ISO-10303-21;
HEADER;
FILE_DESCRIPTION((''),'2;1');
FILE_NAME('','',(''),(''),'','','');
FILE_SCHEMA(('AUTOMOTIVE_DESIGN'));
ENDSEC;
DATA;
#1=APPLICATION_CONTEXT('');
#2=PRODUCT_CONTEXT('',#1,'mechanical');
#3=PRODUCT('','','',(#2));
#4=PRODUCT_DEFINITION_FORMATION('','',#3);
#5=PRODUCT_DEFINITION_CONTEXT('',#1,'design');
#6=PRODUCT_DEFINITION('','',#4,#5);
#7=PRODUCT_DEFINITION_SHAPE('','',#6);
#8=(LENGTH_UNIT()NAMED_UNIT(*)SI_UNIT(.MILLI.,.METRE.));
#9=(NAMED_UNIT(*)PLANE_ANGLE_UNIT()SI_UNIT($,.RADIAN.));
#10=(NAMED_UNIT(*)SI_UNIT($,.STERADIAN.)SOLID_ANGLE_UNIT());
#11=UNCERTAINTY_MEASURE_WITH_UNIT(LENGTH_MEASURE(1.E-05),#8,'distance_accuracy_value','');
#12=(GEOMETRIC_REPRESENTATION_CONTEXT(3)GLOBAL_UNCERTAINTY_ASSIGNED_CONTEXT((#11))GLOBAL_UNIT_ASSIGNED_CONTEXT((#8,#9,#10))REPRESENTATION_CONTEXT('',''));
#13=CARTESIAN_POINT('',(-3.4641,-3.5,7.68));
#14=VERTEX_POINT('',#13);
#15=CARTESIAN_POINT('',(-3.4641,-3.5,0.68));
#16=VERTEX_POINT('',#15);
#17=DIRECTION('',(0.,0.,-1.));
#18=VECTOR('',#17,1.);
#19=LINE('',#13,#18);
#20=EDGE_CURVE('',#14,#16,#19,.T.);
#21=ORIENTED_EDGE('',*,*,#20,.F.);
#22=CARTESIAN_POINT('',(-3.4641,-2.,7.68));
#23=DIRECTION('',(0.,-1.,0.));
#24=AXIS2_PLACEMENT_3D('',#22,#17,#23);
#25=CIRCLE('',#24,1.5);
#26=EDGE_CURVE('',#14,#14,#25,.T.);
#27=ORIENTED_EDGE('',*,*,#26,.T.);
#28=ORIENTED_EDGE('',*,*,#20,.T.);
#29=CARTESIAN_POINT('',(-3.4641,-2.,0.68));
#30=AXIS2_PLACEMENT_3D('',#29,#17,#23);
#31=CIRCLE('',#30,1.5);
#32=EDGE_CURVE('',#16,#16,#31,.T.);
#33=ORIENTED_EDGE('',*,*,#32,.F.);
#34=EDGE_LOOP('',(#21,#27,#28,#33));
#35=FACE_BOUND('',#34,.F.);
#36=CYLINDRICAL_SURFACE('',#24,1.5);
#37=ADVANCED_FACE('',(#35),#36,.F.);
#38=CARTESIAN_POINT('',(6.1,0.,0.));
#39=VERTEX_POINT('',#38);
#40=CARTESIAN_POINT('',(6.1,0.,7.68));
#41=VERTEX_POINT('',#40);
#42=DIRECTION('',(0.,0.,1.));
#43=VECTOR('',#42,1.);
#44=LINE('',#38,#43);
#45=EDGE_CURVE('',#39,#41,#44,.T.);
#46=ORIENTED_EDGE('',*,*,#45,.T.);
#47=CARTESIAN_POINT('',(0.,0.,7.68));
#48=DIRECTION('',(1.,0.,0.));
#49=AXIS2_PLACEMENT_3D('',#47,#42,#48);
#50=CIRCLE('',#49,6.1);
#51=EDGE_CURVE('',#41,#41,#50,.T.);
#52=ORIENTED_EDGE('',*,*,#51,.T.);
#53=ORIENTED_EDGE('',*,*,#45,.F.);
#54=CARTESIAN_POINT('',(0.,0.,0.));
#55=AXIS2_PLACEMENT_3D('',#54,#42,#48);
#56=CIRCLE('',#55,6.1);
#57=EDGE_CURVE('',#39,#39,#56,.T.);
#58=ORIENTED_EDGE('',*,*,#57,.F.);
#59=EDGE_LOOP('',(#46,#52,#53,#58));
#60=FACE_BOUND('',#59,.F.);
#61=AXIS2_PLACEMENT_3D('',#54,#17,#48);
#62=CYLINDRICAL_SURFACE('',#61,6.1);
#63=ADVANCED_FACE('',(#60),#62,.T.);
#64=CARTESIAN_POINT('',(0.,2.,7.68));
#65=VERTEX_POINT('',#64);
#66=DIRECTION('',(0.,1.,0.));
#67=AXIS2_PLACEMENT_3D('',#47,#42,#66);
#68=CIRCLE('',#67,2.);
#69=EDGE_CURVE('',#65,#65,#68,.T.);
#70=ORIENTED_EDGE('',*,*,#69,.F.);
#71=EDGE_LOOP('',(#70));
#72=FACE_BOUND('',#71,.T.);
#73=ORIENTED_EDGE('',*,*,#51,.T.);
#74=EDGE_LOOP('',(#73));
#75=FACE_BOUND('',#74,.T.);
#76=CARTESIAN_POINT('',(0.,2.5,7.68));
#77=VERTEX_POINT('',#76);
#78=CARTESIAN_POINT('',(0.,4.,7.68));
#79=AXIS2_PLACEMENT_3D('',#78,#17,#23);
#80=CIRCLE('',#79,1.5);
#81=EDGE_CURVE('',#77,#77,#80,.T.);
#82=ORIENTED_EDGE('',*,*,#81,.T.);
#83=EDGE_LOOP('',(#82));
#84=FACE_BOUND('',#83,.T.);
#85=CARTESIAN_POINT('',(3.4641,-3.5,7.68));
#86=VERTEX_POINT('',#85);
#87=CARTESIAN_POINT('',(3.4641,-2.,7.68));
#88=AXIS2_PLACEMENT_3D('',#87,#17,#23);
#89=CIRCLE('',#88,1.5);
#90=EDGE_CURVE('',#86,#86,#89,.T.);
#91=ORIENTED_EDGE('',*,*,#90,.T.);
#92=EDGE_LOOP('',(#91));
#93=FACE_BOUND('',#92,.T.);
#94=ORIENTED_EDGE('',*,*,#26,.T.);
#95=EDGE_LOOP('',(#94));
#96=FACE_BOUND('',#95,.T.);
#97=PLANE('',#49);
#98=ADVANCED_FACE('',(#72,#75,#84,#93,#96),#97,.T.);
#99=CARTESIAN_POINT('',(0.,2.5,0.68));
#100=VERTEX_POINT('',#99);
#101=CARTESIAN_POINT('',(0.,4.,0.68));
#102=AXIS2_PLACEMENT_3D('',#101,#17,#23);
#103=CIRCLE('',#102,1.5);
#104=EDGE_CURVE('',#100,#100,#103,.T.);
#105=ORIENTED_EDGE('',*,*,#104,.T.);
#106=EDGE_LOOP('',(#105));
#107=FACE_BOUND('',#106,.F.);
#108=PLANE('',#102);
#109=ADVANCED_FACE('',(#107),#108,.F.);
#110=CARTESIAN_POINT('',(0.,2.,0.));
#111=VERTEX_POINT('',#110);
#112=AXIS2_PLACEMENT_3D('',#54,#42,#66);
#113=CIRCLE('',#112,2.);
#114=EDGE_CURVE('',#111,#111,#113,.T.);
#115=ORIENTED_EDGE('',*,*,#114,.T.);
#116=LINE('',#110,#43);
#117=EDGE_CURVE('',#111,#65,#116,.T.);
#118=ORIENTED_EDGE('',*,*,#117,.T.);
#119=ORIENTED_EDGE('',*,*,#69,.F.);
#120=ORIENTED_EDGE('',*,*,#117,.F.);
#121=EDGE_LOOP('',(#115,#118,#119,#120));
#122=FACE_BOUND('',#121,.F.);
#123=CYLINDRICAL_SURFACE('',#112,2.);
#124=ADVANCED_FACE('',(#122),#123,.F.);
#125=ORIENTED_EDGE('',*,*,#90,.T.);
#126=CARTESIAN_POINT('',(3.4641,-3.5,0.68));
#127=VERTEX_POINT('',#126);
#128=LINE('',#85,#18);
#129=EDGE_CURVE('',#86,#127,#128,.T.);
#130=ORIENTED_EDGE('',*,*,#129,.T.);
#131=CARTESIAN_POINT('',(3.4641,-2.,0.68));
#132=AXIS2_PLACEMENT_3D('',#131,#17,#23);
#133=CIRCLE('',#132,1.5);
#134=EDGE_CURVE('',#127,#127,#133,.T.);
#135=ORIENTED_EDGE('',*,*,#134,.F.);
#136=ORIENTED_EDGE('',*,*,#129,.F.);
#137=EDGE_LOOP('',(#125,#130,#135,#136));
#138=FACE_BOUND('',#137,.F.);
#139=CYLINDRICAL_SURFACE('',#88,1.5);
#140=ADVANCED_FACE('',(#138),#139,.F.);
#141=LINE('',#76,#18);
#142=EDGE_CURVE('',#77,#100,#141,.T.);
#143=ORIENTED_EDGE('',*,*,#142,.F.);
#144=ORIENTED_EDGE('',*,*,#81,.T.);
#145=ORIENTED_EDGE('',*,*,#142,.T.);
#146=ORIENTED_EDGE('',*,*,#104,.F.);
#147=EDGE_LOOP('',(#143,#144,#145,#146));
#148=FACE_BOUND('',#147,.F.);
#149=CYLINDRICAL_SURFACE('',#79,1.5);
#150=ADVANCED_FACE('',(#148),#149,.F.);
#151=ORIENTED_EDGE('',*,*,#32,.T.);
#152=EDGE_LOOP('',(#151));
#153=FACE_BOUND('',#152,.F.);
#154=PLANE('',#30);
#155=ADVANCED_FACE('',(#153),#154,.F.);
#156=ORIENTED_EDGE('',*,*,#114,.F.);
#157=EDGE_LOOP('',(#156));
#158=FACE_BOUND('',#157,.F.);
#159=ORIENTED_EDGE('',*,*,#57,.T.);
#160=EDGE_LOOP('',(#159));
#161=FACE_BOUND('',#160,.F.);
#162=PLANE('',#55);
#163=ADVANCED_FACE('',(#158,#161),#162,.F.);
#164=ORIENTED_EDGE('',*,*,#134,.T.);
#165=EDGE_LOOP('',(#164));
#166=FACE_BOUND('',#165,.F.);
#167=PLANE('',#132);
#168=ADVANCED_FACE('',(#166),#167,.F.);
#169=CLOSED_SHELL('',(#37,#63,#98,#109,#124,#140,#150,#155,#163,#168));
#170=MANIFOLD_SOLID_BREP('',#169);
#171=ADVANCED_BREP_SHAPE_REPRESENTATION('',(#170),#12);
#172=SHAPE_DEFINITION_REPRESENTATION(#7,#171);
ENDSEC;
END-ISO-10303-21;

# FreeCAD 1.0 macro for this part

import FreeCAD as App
import Part
import Sketcher
from FreeCAD import Vector
Q = App.Units.Quantity

doc = App.newDocument("Part")
body = doc.addObject("PartDesign::Body", "Body")

sketch1 = body.newObject("Sketcher::SketchObject", "Sketch")
sketch1.AttachmentSupport = (doc.getObject("XY_Plane"), [""])
sketch1.MapMode = "FlatFace"
sketch1.addGeometry(Part.Circle(Vector(0, 0, 0), Vector(0, 0, 1), 6), False)
sketch1.addConstraint([
    Sketcher.Constraint("Coincident", 0, 3, -1, 1),
    Sketcher.Constraint("Diameter", 0, Q("12.2 mm")),
])
pad1 = body.newObject("PartDesign::Pad", "Pad")
pad1.Profile = sketch1
pad1.Length = 7.68

sketch2 = body.newObject("Sketcher::SketchObject", "Sketch001")
sketch2.AttachmentSupport = (doc.getObject("XY_Plane"), [""])
sketch2.MapMode = "FlatFace"
sketch2.AttachmentOffset = App.Placement(Vector(0, 0, 7.68), App.Rotation())
sketch2.addGeometry([
    Part.Circle(Vector(0, 4, 0), Vector(0, 0, 1), 1.5),
    Part.Circle(Vector(-3.5, -2, 0), Vector(0, 0, 1), 1.5),
    Part.Circle(Vector(3.5, -2, 0), Vector(0, 0, 1), 1.5),
], False)
sketch2.addConstraint([
    Sketcher.Constraint("Equal", 0, 1),
    Sketcher.Constraint("Equal", 1, 2),
    Sketcher.Constraint("Symmetric", 1, 3, 2, 3, -2),
    Sketcher.Constraint("PointOnObject", 0, 3, -2),
    Sketcher.Constraint("Diameter", 0, Q("3 mm")),
    Sketcher.Constraint("DistanceY", -1, 1, 0, 3, Q("4 mm")),
    Sketcher.Constraint("DistanceY", 1, 3, -1, 1, Q("2 mm")),
    Sketcher.Constraint("DistanceX", 1, 3, -1, 1, Q("3.464 mm")),
])
doc.recompute()
hole = body.newObject("PartDesign::Hole", "Hole")
hole.Profile = sketch2
hole.ThreadType = "None"
hole.Diameter = 3
hole.DepthType = "Dimension"
hole.Depth = 7
hole.DrillPoint = "Flat"

sketch3 = body.newObject("Sketcher::SketchObject", "Sketch002")
sketch3.AttachmentSupport = (doc.getObject("XY_Plane"), [""])
sketch3.MapMode = "FlatFace"
sketch3.addGeometry(Part.Circle(Vector(0, 0, 0), Vector(0, 0, 1), 2), False)
sketch3.addConstraint([
    Sketcher.Constraint("Coincident", 0, 3, -1, 1),
    Sketcher.Constraint("Diameter", 0, Q("4 mm")),
])
doc.recompute()
hole2 = body.newObject("PartDesign::Hole", "Hole001")
hole2.Profile = sketch3
hole2.ThreadType = "None"
hole2.Diameter = 4
hole2.DepthType = "ThroughAll"
hole2.Reversed = True

doc.recompute()
